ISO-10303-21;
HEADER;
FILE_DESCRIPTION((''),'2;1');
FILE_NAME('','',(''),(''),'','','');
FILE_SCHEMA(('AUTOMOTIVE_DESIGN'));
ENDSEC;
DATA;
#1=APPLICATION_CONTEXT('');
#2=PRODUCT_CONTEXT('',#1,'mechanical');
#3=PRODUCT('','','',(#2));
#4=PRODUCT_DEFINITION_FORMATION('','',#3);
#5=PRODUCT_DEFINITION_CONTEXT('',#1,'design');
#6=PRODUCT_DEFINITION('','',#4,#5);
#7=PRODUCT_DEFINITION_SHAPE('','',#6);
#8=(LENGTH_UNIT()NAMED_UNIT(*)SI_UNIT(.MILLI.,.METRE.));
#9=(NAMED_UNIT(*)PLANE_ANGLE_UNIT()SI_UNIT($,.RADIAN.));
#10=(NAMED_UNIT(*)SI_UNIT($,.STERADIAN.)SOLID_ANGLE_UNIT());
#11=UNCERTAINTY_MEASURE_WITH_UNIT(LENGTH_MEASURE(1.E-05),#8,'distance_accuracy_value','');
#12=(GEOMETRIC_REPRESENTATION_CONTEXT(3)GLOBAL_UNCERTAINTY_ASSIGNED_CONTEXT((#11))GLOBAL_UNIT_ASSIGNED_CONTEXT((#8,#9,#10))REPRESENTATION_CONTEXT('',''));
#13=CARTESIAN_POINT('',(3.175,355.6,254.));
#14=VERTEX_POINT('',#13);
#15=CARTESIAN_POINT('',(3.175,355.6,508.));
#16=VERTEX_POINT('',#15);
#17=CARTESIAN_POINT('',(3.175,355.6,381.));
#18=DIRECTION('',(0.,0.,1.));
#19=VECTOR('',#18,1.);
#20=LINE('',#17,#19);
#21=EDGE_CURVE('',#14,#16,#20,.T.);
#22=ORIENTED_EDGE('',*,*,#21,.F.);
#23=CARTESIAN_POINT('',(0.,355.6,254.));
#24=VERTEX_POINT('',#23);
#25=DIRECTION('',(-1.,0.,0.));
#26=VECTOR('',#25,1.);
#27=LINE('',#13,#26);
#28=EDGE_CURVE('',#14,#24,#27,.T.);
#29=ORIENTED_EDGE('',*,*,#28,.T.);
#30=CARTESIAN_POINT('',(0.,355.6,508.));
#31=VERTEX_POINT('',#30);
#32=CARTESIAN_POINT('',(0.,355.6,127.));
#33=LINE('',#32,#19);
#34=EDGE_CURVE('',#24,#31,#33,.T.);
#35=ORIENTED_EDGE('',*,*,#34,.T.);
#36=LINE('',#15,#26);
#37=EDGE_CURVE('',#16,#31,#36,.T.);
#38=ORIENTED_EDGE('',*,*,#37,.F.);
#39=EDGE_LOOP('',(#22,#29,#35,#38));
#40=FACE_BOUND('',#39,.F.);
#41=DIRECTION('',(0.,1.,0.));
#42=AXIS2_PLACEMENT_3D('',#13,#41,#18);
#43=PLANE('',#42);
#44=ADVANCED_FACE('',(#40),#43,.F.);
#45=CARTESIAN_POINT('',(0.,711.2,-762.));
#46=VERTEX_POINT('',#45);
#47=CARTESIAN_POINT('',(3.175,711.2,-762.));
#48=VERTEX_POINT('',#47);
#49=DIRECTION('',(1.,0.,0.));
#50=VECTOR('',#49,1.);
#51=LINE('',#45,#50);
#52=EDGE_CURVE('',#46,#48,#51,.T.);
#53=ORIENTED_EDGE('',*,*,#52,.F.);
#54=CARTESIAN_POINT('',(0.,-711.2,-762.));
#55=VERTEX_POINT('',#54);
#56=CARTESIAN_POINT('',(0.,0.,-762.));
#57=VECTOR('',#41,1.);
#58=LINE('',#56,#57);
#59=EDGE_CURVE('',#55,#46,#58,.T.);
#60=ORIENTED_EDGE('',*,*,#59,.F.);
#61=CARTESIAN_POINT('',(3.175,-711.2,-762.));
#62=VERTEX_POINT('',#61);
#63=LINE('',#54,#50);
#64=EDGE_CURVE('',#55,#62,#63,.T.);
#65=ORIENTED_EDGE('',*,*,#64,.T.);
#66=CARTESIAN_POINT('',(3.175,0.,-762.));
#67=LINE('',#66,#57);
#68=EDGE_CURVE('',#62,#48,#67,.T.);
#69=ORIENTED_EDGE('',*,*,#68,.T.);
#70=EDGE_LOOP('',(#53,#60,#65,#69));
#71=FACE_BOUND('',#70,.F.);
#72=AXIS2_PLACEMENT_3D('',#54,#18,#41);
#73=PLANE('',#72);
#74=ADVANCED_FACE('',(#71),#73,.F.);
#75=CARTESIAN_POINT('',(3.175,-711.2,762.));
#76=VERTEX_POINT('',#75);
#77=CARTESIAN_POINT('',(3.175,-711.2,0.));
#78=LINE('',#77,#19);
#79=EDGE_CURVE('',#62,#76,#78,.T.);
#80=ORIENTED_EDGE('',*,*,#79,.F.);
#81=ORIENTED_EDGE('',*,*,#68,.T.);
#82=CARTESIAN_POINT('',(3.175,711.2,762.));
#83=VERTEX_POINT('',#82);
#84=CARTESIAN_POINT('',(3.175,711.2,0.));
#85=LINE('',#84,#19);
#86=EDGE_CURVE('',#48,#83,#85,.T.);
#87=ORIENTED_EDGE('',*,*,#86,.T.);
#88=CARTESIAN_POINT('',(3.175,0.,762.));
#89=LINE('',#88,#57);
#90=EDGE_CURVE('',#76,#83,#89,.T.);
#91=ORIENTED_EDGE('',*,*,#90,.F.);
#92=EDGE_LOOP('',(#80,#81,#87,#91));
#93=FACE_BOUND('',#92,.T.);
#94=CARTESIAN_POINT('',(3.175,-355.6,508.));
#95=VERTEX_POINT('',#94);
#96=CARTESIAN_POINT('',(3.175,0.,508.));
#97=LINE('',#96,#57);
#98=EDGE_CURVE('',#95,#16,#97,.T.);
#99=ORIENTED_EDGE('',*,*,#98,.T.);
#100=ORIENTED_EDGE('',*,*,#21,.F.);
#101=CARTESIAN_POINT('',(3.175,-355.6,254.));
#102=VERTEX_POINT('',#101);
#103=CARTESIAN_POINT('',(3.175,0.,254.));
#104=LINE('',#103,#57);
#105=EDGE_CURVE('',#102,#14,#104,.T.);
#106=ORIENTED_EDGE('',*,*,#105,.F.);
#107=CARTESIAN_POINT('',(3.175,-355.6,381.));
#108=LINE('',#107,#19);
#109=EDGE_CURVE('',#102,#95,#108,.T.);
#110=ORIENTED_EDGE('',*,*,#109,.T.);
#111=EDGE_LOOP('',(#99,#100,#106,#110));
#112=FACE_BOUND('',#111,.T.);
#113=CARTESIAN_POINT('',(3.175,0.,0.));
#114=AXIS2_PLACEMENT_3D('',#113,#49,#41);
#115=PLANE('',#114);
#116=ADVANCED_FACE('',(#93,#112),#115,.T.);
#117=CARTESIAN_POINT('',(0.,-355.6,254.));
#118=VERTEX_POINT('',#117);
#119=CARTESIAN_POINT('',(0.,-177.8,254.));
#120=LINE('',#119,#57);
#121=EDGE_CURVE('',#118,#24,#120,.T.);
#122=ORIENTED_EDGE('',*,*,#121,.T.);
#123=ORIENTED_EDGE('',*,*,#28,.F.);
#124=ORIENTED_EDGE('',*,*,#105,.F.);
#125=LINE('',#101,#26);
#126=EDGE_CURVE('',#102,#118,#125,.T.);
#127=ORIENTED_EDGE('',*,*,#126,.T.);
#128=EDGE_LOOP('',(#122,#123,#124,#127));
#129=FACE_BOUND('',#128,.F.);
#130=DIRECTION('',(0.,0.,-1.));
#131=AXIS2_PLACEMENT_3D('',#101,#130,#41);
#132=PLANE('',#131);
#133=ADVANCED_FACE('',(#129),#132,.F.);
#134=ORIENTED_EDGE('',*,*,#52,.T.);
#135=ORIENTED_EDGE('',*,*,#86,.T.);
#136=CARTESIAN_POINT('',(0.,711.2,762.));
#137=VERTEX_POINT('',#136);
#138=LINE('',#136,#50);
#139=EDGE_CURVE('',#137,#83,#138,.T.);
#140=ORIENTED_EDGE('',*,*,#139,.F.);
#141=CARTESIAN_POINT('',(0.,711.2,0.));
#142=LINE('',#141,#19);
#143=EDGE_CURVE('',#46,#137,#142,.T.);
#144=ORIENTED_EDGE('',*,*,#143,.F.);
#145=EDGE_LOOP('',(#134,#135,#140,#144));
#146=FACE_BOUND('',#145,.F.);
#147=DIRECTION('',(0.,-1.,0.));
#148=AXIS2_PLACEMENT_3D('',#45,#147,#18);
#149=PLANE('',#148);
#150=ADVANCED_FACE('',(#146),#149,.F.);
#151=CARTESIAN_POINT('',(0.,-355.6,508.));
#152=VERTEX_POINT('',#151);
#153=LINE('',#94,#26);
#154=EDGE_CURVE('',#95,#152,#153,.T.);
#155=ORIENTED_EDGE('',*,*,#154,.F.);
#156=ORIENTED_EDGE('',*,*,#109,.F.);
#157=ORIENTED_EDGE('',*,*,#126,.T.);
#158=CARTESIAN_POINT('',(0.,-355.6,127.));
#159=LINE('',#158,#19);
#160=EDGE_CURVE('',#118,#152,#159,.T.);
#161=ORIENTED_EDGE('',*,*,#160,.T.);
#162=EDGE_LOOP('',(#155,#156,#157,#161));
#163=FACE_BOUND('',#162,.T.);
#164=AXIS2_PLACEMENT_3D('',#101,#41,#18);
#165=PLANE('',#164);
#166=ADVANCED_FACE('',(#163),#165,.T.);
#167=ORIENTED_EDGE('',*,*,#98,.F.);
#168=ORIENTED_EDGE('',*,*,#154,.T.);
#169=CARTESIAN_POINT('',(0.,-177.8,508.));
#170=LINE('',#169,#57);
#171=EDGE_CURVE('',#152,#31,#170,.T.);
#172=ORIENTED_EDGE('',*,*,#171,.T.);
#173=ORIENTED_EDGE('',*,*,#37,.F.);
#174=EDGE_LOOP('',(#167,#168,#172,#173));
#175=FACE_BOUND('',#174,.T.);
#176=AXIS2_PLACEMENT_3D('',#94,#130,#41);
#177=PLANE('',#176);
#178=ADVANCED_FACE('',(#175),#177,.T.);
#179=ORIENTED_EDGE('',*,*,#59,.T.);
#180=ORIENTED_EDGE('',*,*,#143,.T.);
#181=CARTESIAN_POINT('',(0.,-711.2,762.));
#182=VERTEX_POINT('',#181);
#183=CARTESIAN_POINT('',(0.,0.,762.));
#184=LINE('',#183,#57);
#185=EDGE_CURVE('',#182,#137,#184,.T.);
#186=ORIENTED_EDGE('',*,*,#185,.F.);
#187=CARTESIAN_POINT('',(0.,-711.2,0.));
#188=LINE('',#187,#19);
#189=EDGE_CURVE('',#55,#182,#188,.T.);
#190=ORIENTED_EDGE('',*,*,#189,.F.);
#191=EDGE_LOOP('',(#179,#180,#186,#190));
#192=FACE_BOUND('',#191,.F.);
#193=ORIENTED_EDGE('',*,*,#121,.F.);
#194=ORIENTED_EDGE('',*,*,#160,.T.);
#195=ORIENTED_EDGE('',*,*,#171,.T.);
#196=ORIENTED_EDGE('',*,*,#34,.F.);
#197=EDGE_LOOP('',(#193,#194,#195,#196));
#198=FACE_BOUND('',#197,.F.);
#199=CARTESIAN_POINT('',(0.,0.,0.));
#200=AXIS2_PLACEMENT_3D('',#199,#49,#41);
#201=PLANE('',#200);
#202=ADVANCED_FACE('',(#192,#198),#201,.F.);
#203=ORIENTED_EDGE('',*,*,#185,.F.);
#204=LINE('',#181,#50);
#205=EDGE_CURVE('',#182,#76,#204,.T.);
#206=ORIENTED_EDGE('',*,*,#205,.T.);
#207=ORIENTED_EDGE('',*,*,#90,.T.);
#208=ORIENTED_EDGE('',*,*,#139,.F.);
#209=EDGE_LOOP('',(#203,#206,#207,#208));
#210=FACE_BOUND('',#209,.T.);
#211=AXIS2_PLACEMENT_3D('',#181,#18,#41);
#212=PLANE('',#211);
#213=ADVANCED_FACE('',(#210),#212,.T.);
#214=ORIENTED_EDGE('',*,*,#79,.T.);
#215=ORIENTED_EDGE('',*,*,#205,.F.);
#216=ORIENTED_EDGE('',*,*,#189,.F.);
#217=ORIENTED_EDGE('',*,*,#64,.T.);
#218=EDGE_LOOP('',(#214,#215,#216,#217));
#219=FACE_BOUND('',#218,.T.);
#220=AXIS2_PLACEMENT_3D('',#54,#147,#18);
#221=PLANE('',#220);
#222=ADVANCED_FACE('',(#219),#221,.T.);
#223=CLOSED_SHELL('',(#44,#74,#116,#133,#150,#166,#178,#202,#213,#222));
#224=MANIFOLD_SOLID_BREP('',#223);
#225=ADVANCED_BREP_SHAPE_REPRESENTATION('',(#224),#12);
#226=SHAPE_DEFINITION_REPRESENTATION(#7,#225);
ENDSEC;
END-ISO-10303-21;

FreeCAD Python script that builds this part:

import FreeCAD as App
import Part
import Sketcher
Q = App.Units.Quantity


def add_polygon(sketch, points):
    """Adds a closed chain of lines whose ends are joined by coincident constraints."""
    first, n = sketch.GeometryCount, len(points)
    for a, b in zip(points, points[1:] + points[:1]):
        sketch.addGeometry(Part.LineSegment(App.Vector(*a, 0), App.Vector(*b, 0)), False)
    for i in range(n):
        sketch.addConstraint(Sketcher.Constraint("Coincident", first + i, 2, first + (i + 1) % n, 1))

doc = App.newDocument("Part")
body = doc.addObject("PartDesign::Body", "Body")

sketch1 = body.newObject("Sketcher::SketchObject", "Sketch")
sketch1.AttachmentSupport = (doc.getObject("YZ_Plane"), [""])
sketch1.MapMode = "FlatFace"
add_polygon(sketch1, [(-711, 762), (-711, -762), (711, -762), (711, 762)])
sketch1.addConstraint(Sketcher.Constraint("Vertical", 0))
sketch1.addConstraint(Sketcher.Constraint("Horizontal", 1))
sketch1.addConstraint(Sketcher.Constraint("Vertical", 2))
sketch1.addConstraint(Sketcher.Constraint("Horizontal", 3))
sketch1.addConstraint(Sketcher.Constraint("Symmetric", 0, 2, 2, 2, -1, 1))
sketch1.addConstraint(Sketcher.Constraint("DistanceX", 1, 1, 1, 2, Q("56 in")))
sketch1.addConstraint(Sketcher.Constraint("DistanceY", 0, 2, 0, 1, Q("60 in")))
pad1 = body.newObject("PartDesign::Pad", "Pad")
pad1.Profile = sketch1
pad1.Length = Q("0.125 in")

sketch2 = body.newObject("Sketcher::SketchObject", "Sketch001")
sketch2.AttachmentSupport = (doc.getObject("YZ_Plane"), [""])
sketch2.MapMode = "FlatFace"
sketch2.AttachmentOffset = App.Placement(App.Vector(0, 0, 0.125 * 25.4), App.Rotation())
add_polygon(sketch2, [(-356, 508), (-356, 254), (356, 254), (356, 508)])
sketch2.addConstraint(Sketcher.Constraint("Vertical", 0))
sketch2.addConstraint(Sketcher.Constraint("Horizontal", 1))
sketch2.addConstraint(Sketcher.Constraint("Vertical", 2))
sketch2.addConstraint(Sketcher.Constraint("Horizontal", 3))
sketch2.addConstraint(Sketcher.Constraint("DistanceX", 1, 1, 1, 2, Q("28 in")))
sketch2.addConstraint(Sketcher.Constraint("DistanceY", 0, 2, 0, 1, Q("10 in")))
sketch2.addConstraint(Sketcher.Constraint("DistanceX", 0, 2, -1, 1, Q("14 in")))
sketch2.addConstraint(Sketcher.Constraint("DistanceY", -1, 1, 0, 2, Q("10 in")))
pocket1 = body.newObject("PartDesign::Pocket", "Pocket")
pocket1.Profile = sketch2
pocket1.Type = "ThroughAll"

doc.recompute()
